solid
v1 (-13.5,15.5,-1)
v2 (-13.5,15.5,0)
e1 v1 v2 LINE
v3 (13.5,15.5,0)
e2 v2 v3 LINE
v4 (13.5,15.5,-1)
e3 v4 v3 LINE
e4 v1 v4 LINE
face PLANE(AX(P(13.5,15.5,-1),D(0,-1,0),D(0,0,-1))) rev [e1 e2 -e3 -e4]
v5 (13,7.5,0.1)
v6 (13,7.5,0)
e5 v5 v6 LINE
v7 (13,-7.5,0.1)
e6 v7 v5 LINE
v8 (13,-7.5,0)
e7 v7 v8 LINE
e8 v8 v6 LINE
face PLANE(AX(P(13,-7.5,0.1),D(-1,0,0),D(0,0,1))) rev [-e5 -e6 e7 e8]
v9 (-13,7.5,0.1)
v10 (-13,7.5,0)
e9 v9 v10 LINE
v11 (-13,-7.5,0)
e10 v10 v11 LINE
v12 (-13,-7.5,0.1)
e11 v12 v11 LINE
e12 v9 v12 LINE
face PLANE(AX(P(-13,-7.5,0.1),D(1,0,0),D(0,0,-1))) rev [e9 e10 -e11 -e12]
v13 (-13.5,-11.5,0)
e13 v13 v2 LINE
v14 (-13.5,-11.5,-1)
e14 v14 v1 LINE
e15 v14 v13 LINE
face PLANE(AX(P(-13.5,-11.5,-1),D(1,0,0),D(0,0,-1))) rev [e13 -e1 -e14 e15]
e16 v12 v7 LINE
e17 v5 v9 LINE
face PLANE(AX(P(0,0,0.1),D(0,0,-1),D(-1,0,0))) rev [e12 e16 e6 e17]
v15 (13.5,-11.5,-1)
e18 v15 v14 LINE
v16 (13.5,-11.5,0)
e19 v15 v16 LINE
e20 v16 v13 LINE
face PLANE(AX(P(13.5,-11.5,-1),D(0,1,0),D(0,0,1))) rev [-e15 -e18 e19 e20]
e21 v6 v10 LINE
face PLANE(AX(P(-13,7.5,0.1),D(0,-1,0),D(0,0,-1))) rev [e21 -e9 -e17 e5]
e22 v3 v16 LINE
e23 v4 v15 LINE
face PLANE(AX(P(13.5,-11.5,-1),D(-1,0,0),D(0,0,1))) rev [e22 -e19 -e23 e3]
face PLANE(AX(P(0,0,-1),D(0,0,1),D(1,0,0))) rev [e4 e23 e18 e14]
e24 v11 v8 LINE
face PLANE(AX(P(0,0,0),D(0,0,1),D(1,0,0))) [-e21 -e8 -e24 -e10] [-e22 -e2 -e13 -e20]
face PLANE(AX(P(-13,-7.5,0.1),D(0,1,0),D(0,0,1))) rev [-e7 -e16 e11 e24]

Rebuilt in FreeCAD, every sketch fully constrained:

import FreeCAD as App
import Part
import Sketcher
from FreeCAD import Vector
Q = App.Units.Quantity

doc = App.newDocument("Part")
body = doc.addObject("PartDesign::Body", "Body")

# Sketch on XY plane
sketch1 = body.newObject("Sketcher::SketchObject", "Sketch")
sketch1.AttachmentSupport = (doc.getObject("XY_Plane"), [""])
sketch1.MapMode = "FlatFace"
sketch1.addGeometry(Part.LineSegment(Vector(-13, 8, 0), Vector(-13, -8, 0)), False)
sketch1.addGeometry(Part.LineSegment(Vector(-13, -8, 0), Vector(13, -8, 0)), False)
sketch1.addGeometry(Part.LineSegment(Vector(13, -8, 0), Vector(13, 8, 0)), False)
sketch1.addGeometry(Part.LineSegment(Vector(13, 8, 0), Vector(-13, 8, 0)), False)
sketch1.addConstraint(Sketcher.Constraint("Coincident", 0, 2, 1, 1))
sketch1.addConstraint(Sketcher.Constraint("Coincident", 1, 2, 2, 1))
sketch1.addConstraint(Sketcher.Constraint("Coincident", 2, 2, 3, 1))
sketch1.addConstraint(Sketcher.Constraint("Coincident", 3, 2, 0, 1))
sketch1.addConstraint(Sketcher.Constraint("Vertical", 0))
sketch1.addConstraint(Sketcher.Constraint("Horizontal", 1))
sketch1.addConstraint(Sketcher.Constraint("Vertical", 2))
sketch1.addConstraint(Sketcher.Constraint("Horizontal", 3))
sketch1.addConstraint(Sketcher.Constraint("Symmetric", 0, 2, 2, 2, -1, 1))
sketch1.addConstraint(Sketcher.Constraint("DistanceX", 1, 1, 1, 2, Q("26 mm")))
sketch1.addConstraint(Sketcher.Constraint("DistanceY", 0, 2, 0, 1, Q("15 mm")))
pad1 = body.newObject("PartDesign::Pad", "Pad")
pad1.Profile = sketch1
pad1.Length = 0.1

# Sketch on XY plane
sketch2 = body.newObject("Sketcher::SketchObject", "Sketch001")
sketch2.AttachmentSupport = (doc.getObject("XY_Plane"), [""])
sketch2.MapMode = "FlatFace"
sketch2.addGeometry(Part.LineSegment(Vector(14, 16, 0), Vector(14, -12, 0)), False)
sketch2.addGeometry(Part.LineSegment(Vector(14, -12, 0), Vector(-14, -12, 0)), False)
sketch2.addGeometry(Part.LineSegment(Vector(-14, -12, 0), Vector(-14, 16, 0)), False)
sketch2.addGeometry(Part.LineSegment(Vector(-14, 16, 0), Vector(14, 16, 0)), False)
sketch2.addConstraint(Sketcher.Constraint("Coincident", 0, 2, 1, 1))
sketch2.addConstraint(Sketcher.Constraint("Coincident", 1, 2, 2, 1))
sketch2.addConstraint(Sketcher.Constraint("Coincident", 2, 2, 3, 1))
sketch2.addConstraint(Sketcher.Constraint("Coincident", 3, 2, 0, 1))
sketch2.addConstraint(Sketcher.Constraint("Vertical", 0))
sketch2.addConstraint(Sketcher.Constraint("Horizontal", 1))
sketch2.addConstraint(Sketcher.Constraint("Vertical", 2))
sketch2.addConstraint(Sketcher.Constraint("Horizontal", 3))
sketch2.addConstraint(Sketcher.Constraint("Equal", 3, 0))
sketch2.addConstraint(Sketcher.Constraint("DistanceX", 1, 2, 1, 1, Q("27 mm")))
sketch2.addConstraint(Sketcher.Constraint("DistanceX", -1, 1, 0, 2, Q("13.5 mm")))
sketch2.addConstraint(Sketcher.Constraint("DistanceY", 0, 2, -1, 1, Q("11.5 mm")))
pad2 = body.newObject("PartDesign::Pad", "Pad001")
pad2.Profile = sketch2
pad2.Length = 1
pad2.Reversed = True

doc.recompute()
